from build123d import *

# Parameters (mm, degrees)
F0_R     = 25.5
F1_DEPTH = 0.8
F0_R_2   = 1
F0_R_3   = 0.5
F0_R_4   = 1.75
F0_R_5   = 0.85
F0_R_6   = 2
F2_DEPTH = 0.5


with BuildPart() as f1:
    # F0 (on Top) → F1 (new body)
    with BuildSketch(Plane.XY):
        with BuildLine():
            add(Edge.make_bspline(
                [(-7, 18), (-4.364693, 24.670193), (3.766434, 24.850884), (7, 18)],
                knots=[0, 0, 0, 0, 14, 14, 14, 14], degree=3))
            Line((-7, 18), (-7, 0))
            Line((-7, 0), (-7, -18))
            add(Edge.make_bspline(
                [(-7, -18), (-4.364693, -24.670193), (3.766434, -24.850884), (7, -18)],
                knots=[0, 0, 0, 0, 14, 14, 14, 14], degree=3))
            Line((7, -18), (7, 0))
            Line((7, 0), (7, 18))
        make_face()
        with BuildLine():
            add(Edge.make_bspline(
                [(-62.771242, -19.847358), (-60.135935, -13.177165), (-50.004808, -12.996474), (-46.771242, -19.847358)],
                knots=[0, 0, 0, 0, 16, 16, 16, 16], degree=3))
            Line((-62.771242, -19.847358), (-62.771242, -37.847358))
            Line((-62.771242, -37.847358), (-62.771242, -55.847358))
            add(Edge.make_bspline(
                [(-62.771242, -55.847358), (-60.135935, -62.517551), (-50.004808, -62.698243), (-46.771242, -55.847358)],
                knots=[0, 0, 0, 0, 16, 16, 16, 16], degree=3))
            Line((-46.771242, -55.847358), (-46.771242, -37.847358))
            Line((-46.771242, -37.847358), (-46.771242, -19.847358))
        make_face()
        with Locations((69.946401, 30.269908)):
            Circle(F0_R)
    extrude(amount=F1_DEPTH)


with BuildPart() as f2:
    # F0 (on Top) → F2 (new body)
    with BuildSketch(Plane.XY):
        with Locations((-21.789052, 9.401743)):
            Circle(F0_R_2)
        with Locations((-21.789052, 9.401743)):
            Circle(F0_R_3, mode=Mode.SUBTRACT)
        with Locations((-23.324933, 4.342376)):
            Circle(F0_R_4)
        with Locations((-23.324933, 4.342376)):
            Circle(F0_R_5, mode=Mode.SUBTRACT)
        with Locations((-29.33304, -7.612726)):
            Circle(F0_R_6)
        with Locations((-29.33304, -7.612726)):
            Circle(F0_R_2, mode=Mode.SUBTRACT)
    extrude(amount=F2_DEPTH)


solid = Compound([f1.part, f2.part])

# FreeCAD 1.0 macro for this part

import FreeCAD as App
import Part
import Sketcher

V = App.Vector

doc = App.newDocument("Part")
body = doc.addObject("PartDesign::Body", "Body")
body.AllowCompound = True

# Sketch on XY plane
sketch1 = doc.addObject("Sketcher::SketchObject", "Sketch")
body.addObject(sketch1)
sketch1.AttachmentSupport = (doc.XY_Plane, [""])
sketch1.MapMode = "FlatFace"
sketch1.addGeometry([
    Part.BSplineCurve([V(-7, 18, 0), V(-4.364693, 24.670193, 0), V(3.766434, 24.850884, 0), V(7, 18, 0)], [4, 4], [0, 14], False, 3, [1, 1, 1, 1], False),  # 0
    Part.LineSegment(V(-7, 18, 0), V(-7, -18, 0)),  # 1
    Part.BSplineCurve([V(-7, -18, 0), V(-4.364693, -24.670193, 0), V(3.766434, -24.850884, 0), V(7, -18, 0)], [4, 4], [0, 14], False, 3, [1, 1, 1, 1], False),  # 2
    Part.LineSegment(V(7, -18, 0), V(7, 18, 0)),  # 3
    Part.BSplineCurve([V(-62.771242, -19.847358, 0), V(-60.135935, -13.177165, 0), V(-50.004808, -12.996474, 0), V(-46.771242, -19.847358, 0)], [4, 4], [0, 16], False, 3, [1, 1, 1, 1], False),  # 4
    Part.LineSegment(V(-62.771242, -19.847358, 0), V(-62.771242, -55.847358, 0)),  # 5
    Part.BSplineCurve([V(-62.771242, -55.847358, 0), V(-60.135935, -62.517551, 0), V(-50.004808, -62.698243, 0), V(-46.771242, -55.847358, 0)], [4, 4], [0, 16], False, 3, [1, 1, 1, 1], False),  # 6
    Part.LineSegment(V(-46.771242, -55.847358, 0), V(-46.771242, -19.847358, 0)),  # 7
    Part.Circle(V(69.946401, 30.269908, 0), V(0, 0, 1), 25.5),  # 8
], False)
sketch1.addConstraint([
    Sketcher.Constraint("Block", 0),
    Sketcher.Constraint("Block", 2),
    Sketcher.Constraint("Block", 4),
    Sketcher.Constraint("Block", 6),
    Sketcher.Constraint("Coincident", 0, 1, 1, 1),
    Sketcher.Constraint("Coincident", 1, 2, 2, 1),
    Sketcher.Constraint("Coincident", 2, 2, 3, 1),
    Sketcher.Constraint("Coincident", 3, 2, 0, 2),
    Sketcher.Constraint("Coincident", 4, 1, 5, 1),
    Sketcher.Constraint("Coincident", 5, 2, 6, 1),
    Sketcher.Constraint("Coincident", 6, 2, 7, 1),
    Sketcher.Constraint("Coincident", 7, 2, 4, 2),
    Sketcher.Constraint("Diameter", 8, 51.0),
    Sketcher.Constraint("DistanceX", -1, 1, 8, 3, 69.946401),
    Sketcher.Constraint("DistanceY", -1, 1, 8, 3, 30.269908),
])
pad1 = doc.addObject("PartDesign::Pad", "Pad")
body.addObject(pad1)
pad1.Profile = sketch1
pad1.Length = 0.8
body2 = doc.addObject("PartDesign::Body", "Body001")
body2.AllowCompound = True

# Sketch on XY plane
sketch2 = doc.addObject("Sketcher::SketchObject", "Sketch001")
body2.addObject(sketch2)
sketch2.AttachmentSupport = (doc.getObject("XY_Plane001"), [""])
sketch2.MapMode = "FlatFace"
sketch2.addGeometry([
    Part.Circle(V(-21.789052, 9.401743, 0), V(0, 0, 1), 1),  # 0
    Part.Circle(V(-21.789052, 9.401743, 0), V(0, 0, 1), 0.5),  # 1
    Part.Circle(V(-23.324933, 4.342376, 0), V(0, 0, 1), 1.75),  # 2
    Part.Circle(V(-23.324933, 4.342376, 0), V(0, 0, 1), 0.85),  # 3
    Part.Circle(V(-29.33304, -7.612726, 0), V(0, 0, 1), 2),  # 4
    Part.Circle(V(-29.33304, -7.612726, 0), V(0, 0, 1), 1),  # 5
], False)
sketch2.addConstraint([
    Sketcher.Constraint("Coincident", 1, 3, 0, 3),
    Sketcher.Constraint("Coincident", 3, 3, 2, 3),
    Sketcher.Constraint("Coincident", 5, 3, 4, 3),
    Sketcher.Constraint("Equal", 0, 5),
    Sketcher.Constraint("Diameter", 0, 2.0),
    Sketcher.Constraint("Diameter", 1, 1.0),
    Sketcher.Constraint("Diameter", 4, 4.0),
    Sketcher.Constraint("Diameter", 2, 3.5),
    Sketcher.Constraint("Diameter", 3, 1.7),
    Sketcher.Constraint("DistanceX", 4, 3, -1, 1, 29.33304),
    Sketcher.Constraint("DistanceX", 2, 3, 0, 3, 1.535881),
    Sketcher.Constraint("DistanceY", 4, 3, 0, 3, 17.014469),
    Sketcher.Constraint("DistanceX", 0, 3, -1, 1, 21.789052),
    Sketcher.Constraint("DistanceY", -1, 1, 0, 3, 9.401743),
    Sketcher.Constraint("DistanceY", -1, 1, 2, 3, 4.342376),
])
pad2 = doc.addObject("PartDesign::Pad", "Pad001")
body2.addObject(pad2)
pad2.Profile = sketch2
pad2.Length = 0.5

doc.recompute()
